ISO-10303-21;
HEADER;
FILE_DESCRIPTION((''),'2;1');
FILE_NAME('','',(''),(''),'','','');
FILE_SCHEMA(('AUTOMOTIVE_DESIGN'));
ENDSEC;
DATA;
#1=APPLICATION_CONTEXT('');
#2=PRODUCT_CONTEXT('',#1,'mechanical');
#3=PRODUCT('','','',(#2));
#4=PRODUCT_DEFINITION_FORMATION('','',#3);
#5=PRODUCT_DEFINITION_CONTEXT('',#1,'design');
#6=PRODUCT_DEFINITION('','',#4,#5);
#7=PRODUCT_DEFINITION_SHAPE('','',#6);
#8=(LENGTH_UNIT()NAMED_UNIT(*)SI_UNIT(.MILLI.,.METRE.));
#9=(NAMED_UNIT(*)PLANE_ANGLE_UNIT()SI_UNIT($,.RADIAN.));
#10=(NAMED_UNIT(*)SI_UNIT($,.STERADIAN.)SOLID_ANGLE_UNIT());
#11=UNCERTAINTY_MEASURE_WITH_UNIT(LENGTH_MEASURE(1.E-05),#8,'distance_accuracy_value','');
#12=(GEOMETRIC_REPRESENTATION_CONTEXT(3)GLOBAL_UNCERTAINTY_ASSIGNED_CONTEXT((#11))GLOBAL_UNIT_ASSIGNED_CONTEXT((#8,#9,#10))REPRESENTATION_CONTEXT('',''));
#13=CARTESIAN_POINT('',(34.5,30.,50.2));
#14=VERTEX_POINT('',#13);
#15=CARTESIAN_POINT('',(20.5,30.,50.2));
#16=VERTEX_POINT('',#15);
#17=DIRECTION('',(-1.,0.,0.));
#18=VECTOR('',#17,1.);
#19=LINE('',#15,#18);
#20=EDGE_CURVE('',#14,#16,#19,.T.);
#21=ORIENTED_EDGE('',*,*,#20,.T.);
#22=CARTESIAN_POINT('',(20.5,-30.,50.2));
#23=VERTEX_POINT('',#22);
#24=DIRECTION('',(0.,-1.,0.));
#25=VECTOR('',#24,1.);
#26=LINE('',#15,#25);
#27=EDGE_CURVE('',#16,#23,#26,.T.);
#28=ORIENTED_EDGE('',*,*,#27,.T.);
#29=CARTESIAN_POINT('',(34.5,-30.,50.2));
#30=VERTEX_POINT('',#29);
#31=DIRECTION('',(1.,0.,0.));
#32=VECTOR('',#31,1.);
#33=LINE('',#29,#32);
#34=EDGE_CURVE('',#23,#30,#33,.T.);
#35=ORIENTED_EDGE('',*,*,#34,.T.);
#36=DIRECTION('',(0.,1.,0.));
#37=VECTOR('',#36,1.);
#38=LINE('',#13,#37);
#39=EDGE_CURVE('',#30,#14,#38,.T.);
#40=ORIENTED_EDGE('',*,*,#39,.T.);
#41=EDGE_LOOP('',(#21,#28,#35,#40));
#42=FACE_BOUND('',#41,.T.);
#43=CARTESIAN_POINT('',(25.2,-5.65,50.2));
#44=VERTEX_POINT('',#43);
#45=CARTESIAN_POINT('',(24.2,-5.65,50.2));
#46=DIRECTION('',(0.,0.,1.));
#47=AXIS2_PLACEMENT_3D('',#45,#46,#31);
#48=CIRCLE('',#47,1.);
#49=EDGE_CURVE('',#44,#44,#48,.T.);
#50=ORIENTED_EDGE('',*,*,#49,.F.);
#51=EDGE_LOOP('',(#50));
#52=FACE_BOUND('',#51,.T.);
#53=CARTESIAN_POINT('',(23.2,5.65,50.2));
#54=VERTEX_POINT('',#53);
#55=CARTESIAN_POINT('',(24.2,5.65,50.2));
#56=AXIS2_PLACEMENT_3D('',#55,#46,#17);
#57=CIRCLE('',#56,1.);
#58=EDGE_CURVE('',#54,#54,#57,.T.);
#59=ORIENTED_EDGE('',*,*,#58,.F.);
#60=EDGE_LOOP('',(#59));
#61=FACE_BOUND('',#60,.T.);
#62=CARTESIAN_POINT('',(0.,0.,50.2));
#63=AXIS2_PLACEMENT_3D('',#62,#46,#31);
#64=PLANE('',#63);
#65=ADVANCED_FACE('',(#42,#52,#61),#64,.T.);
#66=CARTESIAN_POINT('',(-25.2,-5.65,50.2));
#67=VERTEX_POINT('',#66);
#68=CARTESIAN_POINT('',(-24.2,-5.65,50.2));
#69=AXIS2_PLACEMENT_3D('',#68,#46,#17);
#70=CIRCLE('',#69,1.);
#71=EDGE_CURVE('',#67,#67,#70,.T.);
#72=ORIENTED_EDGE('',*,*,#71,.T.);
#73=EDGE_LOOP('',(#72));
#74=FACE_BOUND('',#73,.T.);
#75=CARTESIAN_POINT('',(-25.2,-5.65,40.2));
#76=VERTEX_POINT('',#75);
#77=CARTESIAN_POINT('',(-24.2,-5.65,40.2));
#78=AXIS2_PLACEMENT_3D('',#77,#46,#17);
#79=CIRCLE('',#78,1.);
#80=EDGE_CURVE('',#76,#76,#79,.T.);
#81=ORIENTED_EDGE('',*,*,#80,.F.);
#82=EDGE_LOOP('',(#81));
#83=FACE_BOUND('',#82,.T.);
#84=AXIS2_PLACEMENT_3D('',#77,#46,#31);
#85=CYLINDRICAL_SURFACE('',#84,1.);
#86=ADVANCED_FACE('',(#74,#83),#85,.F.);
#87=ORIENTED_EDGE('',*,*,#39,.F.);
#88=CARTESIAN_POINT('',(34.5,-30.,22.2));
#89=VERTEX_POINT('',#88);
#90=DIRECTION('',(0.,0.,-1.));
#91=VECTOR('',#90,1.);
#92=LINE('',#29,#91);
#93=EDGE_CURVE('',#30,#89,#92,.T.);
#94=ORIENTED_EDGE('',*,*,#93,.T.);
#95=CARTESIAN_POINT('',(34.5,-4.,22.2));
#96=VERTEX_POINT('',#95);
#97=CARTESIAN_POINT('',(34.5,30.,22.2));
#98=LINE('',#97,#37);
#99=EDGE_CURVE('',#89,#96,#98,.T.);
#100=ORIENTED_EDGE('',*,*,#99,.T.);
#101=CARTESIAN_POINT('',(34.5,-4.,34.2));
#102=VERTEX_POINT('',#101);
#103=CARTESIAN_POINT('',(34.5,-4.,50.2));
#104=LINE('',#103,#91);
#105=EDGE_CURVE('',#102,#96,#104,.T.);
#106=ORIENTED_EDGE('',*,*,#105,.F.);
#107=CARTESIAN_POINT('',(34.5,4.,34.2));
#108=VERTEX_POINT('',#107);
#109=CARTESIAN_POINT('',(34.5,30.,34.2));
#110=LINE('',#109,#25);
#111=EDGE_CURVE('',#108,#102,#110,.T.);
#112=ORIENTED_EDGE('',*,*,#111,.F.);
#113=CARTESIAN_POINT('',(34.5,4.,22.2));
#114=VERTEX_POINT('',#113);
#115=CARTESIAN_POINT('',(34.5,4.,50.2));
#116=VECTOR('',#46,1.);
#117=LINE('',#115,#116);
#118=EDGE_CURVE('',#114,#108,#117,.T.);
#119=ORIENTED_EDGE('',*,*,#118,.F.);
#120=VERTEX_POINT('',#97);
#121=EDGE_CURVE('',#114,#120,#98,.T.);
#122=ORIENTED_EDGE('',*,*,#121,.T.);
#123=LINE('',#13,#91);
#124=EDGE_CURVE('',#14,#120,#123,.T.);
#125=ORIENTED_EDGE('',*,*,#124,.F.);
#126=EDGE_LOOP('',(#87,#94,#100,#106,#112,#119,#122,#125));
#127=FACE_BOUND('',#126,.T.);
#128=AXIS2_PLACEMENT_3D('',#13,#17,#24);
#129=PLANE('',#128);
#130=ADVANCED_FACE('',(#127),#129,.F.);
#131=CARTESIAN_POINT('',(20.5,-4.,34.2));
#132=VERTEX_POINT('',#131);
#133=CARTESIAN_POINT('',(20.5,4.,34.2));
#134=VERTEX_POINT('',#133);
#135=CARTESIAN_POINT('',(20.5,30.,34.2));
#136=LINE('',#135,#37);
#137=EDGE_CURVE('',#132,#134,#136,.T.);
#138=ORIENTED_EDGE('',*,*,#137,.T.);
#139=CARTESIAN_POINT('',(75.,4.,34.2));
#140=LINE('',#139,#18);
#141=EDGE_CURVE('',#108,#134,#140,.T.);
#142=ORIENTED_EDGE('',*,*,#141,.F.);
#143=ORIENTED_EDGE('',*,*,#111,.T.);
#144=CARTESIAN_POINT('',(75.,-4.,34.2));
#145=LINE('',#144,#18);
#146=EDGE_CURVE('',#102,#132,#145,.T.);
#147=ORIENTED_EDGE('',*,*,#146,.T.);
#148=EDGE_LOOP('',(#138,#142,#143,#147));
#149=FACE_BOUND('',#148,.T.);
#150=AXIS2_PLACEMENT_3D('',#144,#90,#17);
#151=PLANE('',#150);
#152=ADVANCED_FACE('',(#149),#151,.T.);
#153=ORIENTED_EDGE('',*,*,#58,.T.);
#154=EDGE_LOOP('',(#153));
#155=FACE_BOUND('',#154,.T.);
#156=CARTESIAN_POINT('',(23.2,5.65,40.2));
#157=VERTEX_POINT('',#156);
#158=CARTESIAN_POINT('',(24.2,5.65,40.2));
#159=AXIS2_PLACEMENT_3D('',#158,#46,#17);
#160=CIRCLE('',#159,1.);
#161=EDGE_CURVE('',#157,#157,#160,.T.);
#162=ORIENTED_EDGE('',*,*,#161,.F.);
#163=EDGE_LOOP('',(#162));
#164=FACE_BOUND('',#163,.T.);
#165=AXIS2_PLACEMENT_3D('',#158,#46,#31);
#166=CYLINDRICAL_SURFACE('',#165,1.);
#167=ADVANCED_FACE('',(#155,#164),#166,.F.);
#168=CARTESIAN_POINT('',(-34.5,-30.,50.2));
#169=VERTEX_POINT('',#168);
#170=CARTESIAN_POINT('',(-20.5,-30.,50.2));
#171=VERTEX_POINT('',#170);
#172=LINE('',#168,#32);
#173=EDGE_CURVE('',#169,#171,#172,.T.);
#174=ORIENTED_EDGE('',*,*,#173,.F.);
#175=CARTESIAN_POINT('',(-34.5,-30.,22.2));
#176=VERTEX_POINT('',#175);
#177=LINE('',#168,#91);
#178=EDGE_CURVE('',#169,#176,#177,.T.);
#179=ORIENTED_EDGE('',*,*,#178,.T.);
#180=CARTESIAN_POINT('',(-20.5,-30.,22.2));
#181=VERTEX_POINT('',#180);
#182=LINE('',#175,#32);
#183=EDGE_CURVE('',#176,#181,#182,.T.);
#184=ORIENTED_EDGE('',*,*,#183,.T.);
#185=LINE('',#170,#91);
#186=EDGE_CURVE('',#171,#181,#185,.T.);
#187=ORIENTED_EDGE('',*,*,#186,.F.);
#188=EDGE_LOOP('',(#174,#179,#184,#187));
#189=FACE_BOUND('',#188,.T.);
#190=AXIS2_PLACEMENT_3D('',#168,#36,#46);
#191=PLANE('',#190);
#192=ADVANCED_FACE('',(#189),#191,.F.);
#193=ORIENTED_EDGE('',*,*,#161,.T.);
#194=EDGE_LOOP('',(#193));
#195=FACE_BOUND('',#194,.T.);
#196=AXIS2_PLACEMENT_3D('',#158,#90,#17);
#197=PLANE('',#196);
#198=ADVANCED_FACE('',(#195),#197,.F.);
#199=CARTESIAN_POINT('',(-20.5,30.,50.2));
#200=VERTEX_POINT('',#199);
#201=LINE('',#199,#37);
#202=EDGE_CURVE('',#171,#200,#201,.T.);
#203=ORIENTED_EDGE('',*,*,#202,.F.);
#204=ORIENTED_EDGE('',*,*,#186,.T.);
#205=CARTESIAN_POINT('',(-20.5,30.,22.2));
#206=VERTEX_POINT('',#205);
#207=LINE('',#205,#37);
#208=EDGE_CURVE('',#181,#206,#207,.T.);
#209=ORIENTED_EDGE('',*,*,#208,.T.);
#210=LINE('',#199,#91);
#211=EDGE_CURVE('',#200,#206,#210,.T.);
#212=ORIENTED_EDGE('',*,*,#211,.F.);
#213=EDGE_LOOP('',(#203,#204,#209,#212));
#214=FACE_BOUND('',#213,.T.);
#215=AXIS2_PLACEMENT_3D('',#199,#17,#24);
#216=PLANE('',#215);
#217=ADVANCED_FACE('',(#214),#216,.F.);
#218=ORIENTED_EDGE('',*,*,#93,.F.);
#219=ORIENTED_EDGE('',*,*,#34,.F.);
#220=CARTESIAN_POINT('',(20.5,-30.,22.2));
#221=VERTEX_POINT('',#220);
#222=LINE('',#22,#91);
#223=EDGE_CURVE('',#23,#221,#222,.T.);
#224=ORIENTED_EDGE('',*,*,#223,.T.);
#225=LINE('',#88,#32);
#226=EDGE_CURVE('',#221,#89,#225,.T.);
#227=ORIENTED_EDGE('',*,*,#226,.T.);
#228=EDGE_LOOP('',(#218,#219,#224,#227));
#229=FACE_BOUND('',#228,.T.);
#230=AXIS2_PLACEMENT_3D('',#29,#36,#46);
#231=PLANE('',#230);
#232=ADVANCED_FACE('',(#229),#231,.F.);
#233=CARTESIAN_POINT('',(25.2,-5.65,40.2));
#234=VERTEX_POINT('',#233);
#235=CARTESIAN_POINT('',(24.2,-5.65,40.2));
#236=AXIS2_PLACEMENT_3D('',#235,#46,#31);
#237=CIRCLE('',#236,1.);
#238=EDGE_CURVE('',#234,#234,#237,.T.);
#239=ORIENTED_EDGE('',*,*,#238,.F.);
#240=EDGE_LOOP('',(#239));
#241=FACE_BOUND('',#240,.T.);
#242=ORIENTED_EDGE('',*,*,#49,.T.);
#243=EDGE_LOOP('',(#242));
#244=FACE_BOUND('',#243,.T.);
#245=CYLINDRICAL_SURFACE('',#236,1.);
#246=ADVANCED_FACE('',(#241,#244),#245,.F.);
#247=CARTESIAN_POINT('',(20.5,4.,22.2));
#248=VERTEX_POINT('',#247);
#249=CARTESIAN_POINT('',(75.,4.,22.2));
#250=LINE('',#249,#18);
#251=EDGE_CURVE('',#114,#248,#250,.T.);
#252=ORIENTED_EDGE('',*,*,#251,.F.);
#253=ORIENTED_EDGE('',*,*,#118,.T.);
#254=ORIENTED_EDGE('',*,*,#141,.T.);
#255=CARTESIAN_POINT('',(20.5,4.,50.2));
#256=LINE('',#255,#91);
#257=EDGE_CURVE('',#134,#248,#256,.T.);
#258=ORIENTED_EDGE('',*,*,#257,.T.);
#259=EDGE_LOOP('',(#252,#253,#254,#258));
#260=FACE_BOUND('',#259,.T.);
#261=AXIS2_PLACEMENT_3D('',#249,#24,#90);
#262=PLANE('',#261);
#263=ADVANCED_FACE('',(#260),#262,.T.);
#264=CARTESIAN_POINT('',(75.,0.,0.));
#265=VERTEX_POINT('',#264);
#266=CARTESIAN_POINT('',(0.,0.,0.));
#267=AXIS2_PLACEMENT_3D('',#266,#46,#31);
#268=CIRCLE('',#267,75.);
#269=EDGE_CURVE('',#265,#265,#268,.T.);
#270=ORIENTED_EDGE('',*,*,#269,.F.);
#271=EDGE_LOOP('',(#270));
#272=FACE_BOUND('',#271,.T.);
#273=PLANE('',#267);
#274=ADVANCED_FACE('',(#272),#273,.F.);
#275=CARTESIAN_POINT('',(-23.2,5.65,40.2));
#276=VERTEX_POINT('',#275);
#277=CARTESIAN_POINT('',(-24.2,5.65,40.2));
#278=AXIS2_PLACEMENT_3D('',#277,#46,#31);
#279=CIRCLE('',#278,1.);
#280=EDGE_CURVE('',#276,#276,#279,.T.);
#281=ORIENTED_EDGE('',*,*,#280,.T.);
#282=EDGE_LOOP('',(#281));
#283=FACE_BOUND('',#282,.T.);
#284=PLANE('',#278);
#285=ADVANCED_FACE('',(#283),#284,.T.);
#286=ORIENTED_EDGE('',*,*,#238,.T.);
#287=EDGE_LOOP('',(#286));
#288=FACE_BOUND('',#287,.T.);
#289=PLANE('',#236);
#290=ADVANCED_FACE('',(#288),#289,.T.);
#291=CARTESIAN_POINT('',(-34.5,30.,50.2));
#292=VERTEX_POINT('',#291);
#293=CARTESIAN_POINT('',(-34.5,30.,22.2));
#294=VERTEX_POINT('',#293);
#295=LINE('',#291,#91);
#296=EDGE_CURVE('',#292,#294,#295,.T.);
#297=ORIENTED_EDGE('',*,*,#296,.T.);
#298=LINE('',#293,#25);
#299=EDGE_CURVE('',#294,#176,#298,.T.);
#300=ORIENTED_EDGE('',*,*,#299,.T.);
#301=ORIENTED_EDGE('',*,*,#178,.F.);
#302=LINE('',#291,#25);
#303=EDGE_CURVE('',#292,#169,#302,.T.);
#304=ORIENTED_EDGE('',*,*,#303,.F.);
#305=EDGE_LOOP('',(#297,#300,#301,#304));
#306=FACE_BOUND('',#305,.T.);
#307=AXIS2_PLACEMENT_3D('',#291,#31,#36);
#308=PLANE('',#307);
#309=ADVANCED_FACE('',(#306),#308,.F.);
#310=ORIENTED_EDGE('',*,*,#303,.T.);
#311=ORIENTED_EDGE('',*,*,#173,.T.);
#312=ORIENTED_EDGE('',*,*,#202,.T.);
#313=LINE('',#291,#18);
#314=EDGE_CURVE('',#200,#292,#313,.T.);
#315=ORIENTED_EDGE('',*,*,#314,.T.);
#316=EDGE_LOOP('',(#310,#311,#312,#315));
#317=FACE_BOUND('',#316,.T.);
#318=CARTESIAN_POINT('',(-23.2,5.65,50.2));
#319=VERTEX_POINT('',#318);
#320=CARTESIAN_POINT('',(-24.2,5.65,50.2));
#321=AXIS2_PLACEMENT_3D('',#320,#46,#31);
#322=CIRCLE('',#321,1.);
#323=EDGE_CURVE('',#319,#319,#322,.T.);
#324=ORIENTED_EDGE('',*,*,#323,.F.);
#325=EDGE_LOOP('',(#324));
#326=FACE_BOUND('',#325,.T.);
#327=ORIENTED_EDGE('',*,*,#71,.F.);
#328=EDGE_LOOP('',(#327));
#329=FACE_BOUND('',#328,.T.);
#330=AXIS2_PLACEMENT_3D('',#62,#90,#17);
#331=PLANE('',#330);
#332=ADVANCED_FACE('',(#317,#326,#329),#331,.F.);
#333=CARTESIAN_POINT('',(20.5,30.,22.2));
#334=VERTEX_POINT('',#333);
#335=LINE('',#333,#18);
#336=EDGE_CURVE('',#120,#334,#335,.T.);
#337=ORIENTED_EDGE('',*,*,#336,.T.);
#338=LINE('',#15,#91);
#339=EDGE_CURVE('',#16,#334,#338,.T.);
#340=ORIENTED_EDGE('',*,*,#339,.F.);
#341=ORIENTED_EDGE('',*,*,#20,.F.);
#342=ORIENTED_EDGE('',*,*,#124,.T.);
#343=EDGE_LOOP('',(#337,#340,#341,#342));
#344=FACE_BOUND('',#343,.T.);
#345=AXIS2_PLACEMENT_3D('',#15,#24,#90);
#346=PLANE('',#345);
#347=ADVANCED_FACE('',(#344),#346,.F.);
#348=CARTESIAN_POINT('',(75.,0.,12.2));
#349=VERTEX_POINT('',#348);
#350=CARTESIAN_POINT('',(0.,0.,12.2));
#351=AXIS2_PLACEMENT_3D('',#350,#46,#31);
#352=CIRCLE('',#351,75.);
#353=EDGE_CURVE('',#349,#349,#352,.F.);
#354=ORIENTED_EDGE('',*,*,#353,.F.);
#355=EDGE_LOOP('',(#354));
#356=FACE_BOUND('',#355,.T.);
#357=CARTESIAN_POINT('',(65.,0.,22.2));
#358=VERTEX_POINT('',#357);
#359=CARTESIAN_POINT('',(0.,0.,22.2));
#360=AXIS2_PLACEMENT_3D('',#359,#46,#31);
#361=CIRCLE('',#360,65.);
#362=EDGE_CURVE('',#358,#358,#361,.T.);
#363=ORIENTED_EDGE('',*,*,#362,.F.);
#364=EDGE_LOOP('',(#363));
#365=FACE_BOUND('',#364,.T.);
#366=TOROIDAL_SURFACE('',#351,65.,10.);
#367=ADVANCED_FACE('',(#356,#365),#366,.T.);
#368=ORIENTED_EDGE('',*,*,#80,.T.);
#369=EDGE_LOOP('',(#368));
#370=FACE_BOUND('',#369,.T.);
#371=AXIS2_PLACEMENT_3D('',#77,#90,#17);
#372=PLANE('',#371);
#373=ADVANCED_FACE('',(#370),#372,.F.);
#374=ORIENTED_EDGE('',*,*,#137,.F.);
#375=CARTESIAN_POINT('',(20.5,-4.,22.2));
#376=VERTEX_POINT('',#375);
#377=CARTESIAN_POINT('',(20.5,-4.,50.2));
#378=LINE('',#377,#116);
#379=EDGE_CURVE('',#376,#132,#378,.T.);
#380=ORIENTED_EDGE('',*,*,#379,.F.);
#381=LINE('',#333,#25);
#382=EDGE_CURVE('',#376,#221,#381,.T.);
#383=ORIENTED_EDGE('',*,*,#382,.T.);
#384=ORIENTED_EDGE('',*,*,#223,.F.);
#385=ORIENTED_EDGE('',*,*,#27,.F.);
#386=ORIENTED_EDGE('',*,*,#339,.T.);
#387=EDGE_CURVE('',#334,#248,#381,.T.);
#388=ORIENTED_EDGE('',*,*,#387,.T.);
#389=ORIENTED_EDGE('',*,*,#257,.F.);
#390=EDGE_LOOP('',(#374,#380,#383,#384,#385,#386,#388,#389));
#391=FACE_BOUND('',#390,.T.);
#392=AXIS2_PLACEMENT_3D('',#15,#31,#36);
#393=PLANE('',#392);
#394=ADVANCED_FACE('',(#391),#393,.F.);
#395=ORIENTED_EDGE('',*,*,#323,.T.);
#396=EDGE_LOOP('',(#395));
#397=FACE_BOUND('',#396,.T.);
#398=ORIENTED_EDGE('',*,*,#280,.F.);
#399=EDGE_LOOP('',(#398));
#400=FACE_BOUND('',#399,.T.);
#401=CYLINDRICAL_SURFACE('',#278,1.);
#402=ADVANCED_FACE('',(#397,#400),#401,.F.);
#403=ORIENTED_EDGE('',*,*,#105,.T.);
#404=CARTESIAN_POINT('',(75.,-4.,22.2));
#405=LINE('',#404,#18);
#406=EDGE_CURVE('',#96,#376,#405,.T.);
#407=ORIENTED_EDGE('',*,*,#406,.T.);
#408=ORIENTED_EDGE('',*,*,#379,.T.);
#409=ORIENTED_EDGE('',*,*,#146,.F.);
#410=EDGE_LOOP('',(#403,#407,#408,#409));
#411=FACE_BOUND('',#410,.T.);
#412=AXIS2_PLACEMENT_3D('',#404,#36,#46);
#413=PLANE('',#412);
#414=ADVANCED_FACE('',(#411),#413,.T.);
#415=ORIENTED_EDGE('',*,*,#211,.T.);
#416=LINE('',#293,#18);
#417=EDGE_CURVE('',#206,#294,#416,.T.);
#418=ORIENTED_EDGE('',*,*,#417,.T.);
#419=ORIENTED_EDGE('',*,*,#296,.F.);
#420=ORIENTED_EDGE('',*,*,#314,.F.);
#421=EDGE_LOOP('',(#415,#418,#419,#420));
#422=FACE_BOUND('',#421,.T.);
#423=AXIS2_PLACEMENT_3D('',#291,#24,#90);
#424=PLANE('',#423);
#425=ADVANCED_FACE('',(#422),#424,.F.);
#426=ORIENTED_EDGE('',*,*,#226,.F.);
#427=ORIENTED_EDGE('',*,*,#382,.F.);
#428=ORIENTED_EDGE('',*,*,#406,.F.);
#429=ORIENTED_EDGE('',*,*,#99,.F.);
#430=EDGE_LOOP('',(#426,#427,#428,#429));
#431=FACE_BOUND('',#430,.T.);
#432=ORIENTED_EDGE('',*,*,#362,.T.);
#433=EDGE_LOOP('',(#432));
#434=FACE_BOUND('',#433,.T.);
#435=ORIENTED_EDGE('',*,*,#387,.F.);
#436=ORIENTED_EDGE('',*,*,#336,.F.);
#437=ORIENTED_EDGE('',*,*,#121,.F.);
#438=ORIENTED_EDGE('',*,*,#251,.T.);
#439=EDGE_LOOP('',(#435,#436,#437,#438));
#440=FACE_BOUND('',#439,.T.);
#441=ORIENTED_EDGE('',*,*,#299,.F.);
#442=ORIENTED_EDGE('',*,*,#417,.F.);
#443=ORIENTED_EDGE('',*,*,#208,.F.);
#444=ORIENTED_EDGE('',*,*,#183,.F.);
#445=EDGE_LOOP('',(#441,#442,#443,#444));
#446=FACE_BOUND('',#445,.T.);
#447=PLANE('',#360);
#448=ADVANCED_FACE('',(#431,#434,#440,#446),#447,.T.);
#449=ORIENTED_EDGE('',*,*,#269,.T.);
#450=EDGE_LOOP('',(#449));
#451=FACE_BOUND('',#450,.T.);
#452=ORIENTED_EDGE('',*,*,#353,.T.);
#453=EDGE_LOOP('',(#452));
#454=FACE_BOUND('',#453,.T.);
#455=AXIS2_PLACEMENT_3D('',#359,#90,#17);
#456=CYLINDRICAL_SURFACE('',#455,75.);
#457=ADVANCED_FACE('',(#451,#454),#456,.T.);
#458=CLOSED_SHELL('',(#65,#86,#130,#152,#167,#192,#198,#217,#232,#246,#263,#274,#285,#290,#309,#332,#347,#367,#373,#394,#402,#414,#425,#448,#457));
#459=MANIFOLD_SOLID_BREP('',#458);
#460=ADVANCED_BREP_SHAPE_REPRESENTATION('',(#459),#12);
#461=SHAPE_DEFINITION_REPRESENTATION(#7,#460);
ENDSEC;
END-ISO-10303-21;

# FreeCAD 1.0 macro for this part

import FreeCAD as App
import Part
import Sketcher
from FreeCAD import Vector
Q = App.Units.Quantity


def edges_at(feature, points):
    """Names of the edges that pass closest to the given points."""
    edges = feature.Shape.Edges
    near = lambda p: min(range(len(edges)), key=lambda i: edges[i].distToShape(Part.Vertex(*p))[0])
    return sorted({f"Edge{near(p) + 1}" for p in points})

doc = App.newDocument("Part")
body = doc.addObject("PartDesign::Body", "Body")

sketch1 = body.newObject("Sketcher::SketchObject", "Sketch")
sketch1.AttachmentSupport = (doc.getObject("XY_Plane"), [""])
sketch1.MapMode = "FlatFace"
sketch1.addGeometry(Part.Circle(Vector(0, 0, 0), Vector(0, 0, 1), 75), False)
sketch1.addConstraint([
    Sketcher.Constraint("Coincident", 0, 3, -1, 1),
    Sketcher.Constraint("Diameter", 0, Q("150 mm")),
])
pad1 = body.newObject("PartDesign::Pad", "Pad")
pad1.Profile = sketch1
pad1.Length = 22.2
doc.recompute()

fillet = body.newObject("PartDesign::Fillet", "Fillet")
fillet.Base = (pad1, edges_at(pad1, [(-75, 0, 22.2)]))
fillet.Radius = 10

sketch2 = body.newObject("Sketcher::SketchObject", "Sketch001")
sketch2.AttachmentSupport = (doc.getObject("XY_Plane"), [""])
sketch2.MapMode = "FlatFace"
sketch2.AttachmentOffset = App.Placement(Vector(0, 0, 22.2), App.Rotation())
sketch2.addGeometry([
    Part.LineSegment(Vector(-34, 30, 0), Vector(-34, -30, 0)),
    Part.LineSegment(Vector(-34, -30, 0), Vector(-20, -30, 0)),
    Part.LineSegment(Vector(-20, -30, 0), Vector(-20, 30, 0)),
    Part.LineSegment(Vector(-20, 30, 0), Vector(-34, 30, 0)),
    Part.LineSegment(Vector(20, 30, 0), Vector(20, -30, 0)),
    Part.LineSegment(Vector(20, -30, 0), Vector(34, -30, 0)),
    Part.LineSegment(Vector(34, -30, 0), Vector(34, 30, 0)),
    Part.LineSegment(Vector(34, 30, 0), Vector(20, 30, 0)),
], False)
sketch2.addConstraint([
    Sketcher.Constraint("Coincident", 0, 2, 1, 1),
    Sketcher.Constraint("Coincident", 1, 2, 2, 1),
    Sketcher.Constraint("Coincident", 2, 2, 3, 1),
    Sketcher.Constraint("Coincident", 3, 2, 0, 1),
    Sketcher.Constraint("Coincident", 4, 2, 5, 1),
    Sketcher.Constraint("Coincident", 5, 2, 6, 1),
    Sketcher.Constraint("Coincident", 6, 2, 7, 1),
    Sketcher.Constraint("Coincident", 7, 2, 4, 1),
    Sketcher.Constraint("Vertical", 0),
    Sketcher.Constraint("Horizontal", 1),
    Sketcher.Constraint("Vertical", 2),
    Sketcher.Constraint("Horizontal", 3),
    Sketcher.Constraint("Vertical", 4),
    Sketcher.Constraint("Horizontal", 5),
    Sketcher.Constraint("Vertical", 6),
    Sketcher.Constraint("Horizontal", 7),
    Sketcher.Constraint("Symmetric", 2, 2, 4, 2, -1, 1),
    Sketcher.Constraint("Symmetric", 0, 2, 6, 2, -1, 1),
    Sketcher.Constraint("Horizontal", 1, 2, 4, 2),
    Sketcher.Constraint("DistanceX", 1, 1, 1, 2, Q("14 mm")),
    Sketcher.Constraint("DistanceY", 0, 2, 0, 1, Q("60 mm")),
    Sketcher.Constraint("DistanceX", 1, 2, 4, 2, Q("41 mm")),
])
pad2 = body.newObject("PartDesign::Pad", "Pad001")
pad2.Profile = sketch2
pad2.Length = 28

sketch3 = body.newObject("Sketcher::SketchObject", "Sketch002")
sketch3.AttachmentSupport = (doc.getObject("XY_Plane"), [""])
sketch3.MapMode = "FlatFace"
sketch3.AttachmentOffset = App.Placement(Vector(0, 0, 50.2), App.Rotation())
sketch3.addGeometry([
    Part.Circle(Vector(-24.2, 5.7, 0), Vector(0, 0, 1), 1),
    Part.Circle(Vector(-24.2, -5.7, 0), Vector(0, 0, 1), 1),
    Part.Circle(Vector(24.2, -5.7, 0), Vector(0, 0, 1), 1),
    Part.Circle(Vector(24.2, 5.7, 0), Vector(0, 0, 1), 1),
], False)
sketch3.addConstraint([
    Sketcher.Constraint("Equal", 0, 1),
    Sketcher.Constraint("Equal", 1, 2),
    Sketcher.Constraint("Equal", 2, 3),
    Sketcher.Constraint("Symmetric", 0, 3, 2, 3, -1, 1),
    Sketcher.Constraint("Symmetric", 1, 3, 3, 3, -1, 1),
    Sketcher.Constraint("Symmetric", 1, 3, 2, 3, -2),
    Sketcher.Constraint("Diameter", 0, Q("2 mm")),
    Sketcher.Constraint("DistanceX", 0, 3, -1, 1, Q("24.2 mm")),
    Sketcher.Constraint("DistanceY", 1, 3, 0, 3, Q("11.3 mm")),
])
pocket1 = body.newObject("PartDesign::Pocket", "Pocket")
pocket1.Profile = sketch3
pocket1.Length = 10

sketch4 = body.newObject("Sketcher::SketchObject", "Sketch003")
sketch4.AttachmentSupport = (doc.getObject("YZ_Plane"), [""])
sketch4.MapMode = "FlatFace"
sketch4.addGeometry([
    Part.LineSegment(Vector(4, 34, 0), Vector(-4, 34, 0)),
    Part.LineSegment(Vector(-4, 34, 0), Vector(-4, 22, 0)),
    Part.LineSegment(Vector(-4, 22, 0), Vector(4, 22, 0)),
    Part.LineSegment(Vector(4, 22, 0), Vector(4, 34, 0)),
], False)
sketch4.addConstraint([
    Sketcher.Constraint("Coincident", 0, 2, 1, 1),
    Sketcher.Constraint("Coincident", 1, 2, 2, 1),
    Sketcher.Constraint("Coincident", 2, 2, 3, 1),
    Sketcher.Constraint("Coincident", 3, 2, 0, 1),
    Sketcher.Constraint("Horizontal", 0),
    Sketcher.Constraint("Vertical", 1),
    Sketcher.Constraint("Horizontal", 2),
    Sketcher.Constraint("Vertical", 3),
    Sketcher.Constraint("DistanceX", 0, 2, 0, 1, Q("8 mm")),
    Sketcher.Constraint("DistanceY", 1, 2, 1, 1, Q("12 mm")),
    Sketcher.Constraint("DistanceX", 0, 2, -1, 1, Q("4 mm")),
    Sketcher.Constraint("DistanceY", -1, 1, 0, 2, Q("34.2 mm")),
])
pocket2 = body.newObject("PartDesign::Pocket", "Pocket001")
pocket2.Profile = sketch4
pocket2.Type = "ThroughAll"
pocket2.Reversed = True

doc.recompute()
